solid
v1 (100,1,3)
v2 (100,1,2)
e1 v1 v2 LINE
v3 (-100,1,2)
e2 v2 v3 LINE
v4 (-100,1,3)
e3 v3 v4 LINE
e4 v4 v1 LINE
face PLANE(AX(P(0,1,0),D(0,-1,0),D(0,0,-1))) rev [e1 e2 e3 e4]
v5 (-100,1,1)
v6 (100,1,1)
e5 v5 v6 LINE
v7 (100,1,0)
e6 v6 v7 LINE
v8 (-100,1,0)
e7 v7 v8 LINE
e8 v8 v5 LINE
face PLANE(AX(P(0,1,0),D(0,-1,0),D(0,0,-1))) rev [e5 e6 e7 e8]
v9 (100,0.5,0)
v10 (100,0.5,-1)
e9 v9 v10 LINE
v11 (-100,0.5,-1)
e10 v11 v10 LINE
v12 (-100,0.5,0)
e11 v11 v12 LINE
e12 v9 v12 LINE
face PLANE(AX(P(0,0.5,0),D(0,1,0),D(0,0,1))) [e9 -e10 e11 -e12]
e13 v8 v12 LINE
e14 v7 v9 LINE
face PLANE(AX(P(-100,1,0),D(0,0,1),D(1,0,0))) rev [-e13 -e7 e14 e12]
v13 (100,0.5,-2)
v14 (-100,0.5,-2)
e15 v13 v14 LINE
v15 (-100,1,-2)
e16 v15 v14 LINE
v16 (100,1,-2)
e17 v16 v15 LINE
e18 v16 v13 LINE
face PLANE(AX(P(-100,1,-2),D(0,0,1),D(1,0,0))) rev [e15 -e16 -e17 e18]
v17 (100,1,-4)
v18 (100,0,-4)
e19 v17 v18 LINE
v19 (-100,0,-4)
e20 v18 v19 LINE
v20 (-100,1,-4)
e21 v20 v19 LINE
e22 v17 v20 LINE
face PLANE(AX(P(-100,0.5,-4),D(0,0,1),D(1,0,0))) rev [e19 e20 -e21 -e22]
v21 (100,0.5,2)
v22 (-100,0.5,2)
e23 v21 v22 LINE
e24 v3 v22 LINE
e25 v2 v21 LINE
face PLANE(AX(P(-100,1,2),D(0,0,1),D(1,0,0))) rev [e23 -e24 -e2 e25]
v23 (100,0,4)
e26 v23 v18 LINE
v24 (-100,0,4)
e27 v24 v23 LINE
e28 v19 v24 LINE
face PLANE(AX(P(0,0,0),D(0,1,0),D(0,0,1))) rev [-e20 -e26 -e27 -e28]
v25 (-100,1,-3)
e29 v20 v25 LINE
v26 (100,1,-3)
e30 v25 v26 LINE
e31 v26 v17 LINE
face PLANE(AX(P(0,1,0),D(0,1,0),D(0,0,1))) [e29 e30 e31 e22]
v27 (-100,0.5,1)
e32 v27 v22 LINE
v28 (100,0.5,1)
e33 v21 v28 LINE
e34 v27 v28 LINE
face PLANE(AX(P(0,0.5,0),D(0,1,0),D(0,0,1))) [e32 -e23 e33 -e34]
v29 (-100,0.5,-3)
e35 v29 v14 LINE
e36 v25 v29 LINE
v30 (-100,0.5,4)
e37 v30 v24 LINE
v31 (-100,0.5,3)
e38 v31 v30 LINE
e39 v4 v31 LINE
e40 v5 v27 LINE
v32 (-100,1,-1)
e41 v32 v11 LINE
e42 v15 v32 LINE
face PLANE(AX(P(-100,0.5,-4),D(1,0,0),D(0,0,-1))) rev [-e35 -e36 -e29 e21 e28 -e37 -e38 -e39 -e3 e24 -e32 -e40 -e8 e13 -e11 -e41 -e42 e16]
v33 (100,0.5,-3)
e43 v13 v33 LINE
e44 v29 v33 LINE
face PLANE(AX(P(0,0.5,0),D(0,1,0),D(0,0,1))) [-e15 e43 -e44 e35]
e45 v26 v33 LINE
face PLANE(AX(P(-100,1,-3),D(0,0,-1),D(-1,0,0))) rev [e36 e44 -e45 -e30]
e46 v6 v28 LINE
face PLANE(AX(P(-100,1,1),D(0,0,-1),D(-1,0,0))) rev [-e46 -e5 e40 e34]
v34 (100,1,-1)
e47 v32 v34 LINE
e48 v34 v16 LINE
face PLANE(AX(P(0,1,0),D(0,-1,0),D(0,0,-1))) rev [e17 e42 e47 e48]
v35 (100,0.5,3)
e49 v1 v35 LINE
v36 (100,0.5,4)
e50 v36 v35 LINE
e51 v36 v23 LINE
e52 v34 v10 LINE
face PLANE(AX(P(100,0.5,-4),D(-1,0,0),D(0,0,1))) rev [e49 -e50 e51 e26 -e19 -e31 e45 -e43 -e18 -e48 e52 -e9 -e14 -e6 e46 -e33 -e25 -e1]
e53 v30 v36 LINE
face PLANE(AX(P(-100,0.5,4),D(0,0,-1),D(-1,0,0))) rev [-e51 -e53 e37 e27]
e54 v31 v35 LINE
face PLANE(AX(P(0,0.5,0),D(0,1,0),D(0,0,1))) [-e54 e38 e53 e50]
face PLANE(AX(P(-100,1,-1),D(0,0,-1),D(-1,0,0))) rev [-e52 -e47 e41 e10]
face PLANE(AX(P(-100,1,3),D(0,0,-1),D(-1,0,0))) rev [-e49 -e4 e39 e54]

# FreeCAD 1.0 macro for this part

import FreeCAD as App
import Part
import Sketcher
Q = App.Units.Quantity

doc = App.newDocument("Part")
body = doc.addObject("PartDesign::Body", "Body")

sketch1 = body.newObject("Sketcher::SketchObject", "Sketch")
sketch1.AttachmentSupport = (doc.getObject("XZ_Plane"), [""])
sketch1.MapMode = "FlatFace"
sketch1.addGeometry(Part.LineSegment(App.Vector(-100, -4, 0), App.Vector(-100, 4, 0)), False)
sketch1.addGeometry(Part.LineSegment(App.Vector(-100, 4, 0), App.Vector(100, 4, 0)), False)
sketch1.addGeometry(Part.LineSegment(App.Vector(100, 4, 0), App.Vector(100, -4, 0)), False)
sketch1.addGeometry(Part.LineSegment(App.Vector(100, -4, 0), App.Vector(-100, -4, 0)), False)
sketch1.addConstraint(Sketcher.Constraint("Coincident", 0, 2, 1, 1))
sketch1.addConstraint(Sketcher.Constraint("Coincident", 1, 2, 2, 1))
sketch1.addConstraint(Sketcher.Constraint("Coincident", 2, 2, 3, 1))
sketch1.addConstraint(Sketcher.Constraint("Coincident", 3, 2, 0, 1))
sketch1.addConstraint(Sketcher.Constraint("Vertical", 0))
sketch1.addConstraint(Sketcher.Constraint("Horizontal", 1))
sketch1.addConstraint(Sketcher.Constraint("Vertical", 2))
sketch1.addConstraint(Sketcher.Constraint("Horizontal", 3))
sketch1.addConstraint(Sketcher.Constraint("Symmetric", 0, 2, 2, 2, -1, 1))
sketch1.addConstraint(Sketcher.Constraint("DistanceX", 1, 1, 1, 2, Q("200 mm")))
sketch1.addConstraint(Sketcher.Constraint("DistanceY", 0, 1, 0, 2, Q("8 mm")))
pad1 = body.newObject("PartDesign::Pad", "Pad")
pad1.Profile = sketch1
pad1.Length = 0.5
pad1.Reversed = True

sketch2 = body.newObject("Sketcher::SketchObject", "Sketch001")
sketch2.AttachmentSupport = (doc.getObject("XZ_Plane"), [""])
sketch2.MapMode = "FlatFace"
sketch2.AttachmentOffset = App.Placement(App.Vector(0, 0, -0.5), App.Rotation())
sketch2.addGeometry(Part.LineSegment(App.Vector(-100, -4, 0), App.Vector(-100, -3, 0)), False)
sketch2.addGeometry(Part.LineSegment(App.Vector(-100, -3, 0), App.Vector(100, -3, 0)), False)
sketch2.addGeometry(Part.LineSegment(App.Vector(100, -3, 0), App.Vector(100, -4, 0)), False)
sketch2.addGeometry(Part.LineSegment(App.Vector(100, -4, 0), App.Vector(-100, -4, 0)), False)
sketch2.addGeometry(Part.LineSegment(App.Vector(-100, -2, 0), App.Vector(-100, -1, 0)), False)
sketch2.addGeometry(Part.LineSegment(App.Vector(-100, -1, 0), App.Vector(100, -1, 0)), False)
sketch2.addGeometry(Part.LineSegment(App.Vector(100, -1, 0), App.Vector(100, -2, 0)), False)
sketch2.addGeometry(Part.LineSegment(App.Vector(100, -2, 0), App.Vector(-100, -2, 0)), False)
sketch2.addGeometry(Part.LineSegment(App.Vector(-100, 0, 0), App.Vector(-100, 1, 0)), False)
sketch2.addGeometry(Part.LineSegment(App.Vector(-100, 1, 0), App.Vector(100, 1, 0)), False)
sketch2.addGeometry(Part.LineSegment(App.Vector(100, 1, 0), App.Vector(100, 0, 0)), False)
sketch2.addGeometry(Part.LineSegment(App.Vector(100, 0, 0), App.Vector(-100, 0, 0)), False)
sketch2.addGeometry(Part.LineSegment(App.Vector(-100, 2, 0), App.Vector(-100, 3, 0)), False)
sketch2.addGeometry(Part.LineSegment(App.Vector(-100, 3, 0), App.Vector(100, 3, 0)), False)
sketch2.addGeometry(Part.LineSegment(App.Vector(100, 3, 0), App.Vector(100, 2, 0)), False)
sketch2.addGeometry(Part.LineSegment(App.Vector(100, 2, 0), App.Vector(-100, 2, 0)), False)
sketch2.addConstraint(Sketcher.Constraint("Coincident", 0, 2, 1, 1))
sketch2.addConstraint(Sketcher.Constraint("Coincident", 1, 2, 2, 1))
sketch2.addConstraint(Sketcher.Constraint("Coincident", 2, 2, 3, 1))
sketch2.addConstraint(Sketcher.Constraint("Coincident", 3, 2, 0, 1))
sketch2.addConstraint(Sketcher.Constraint("Coincident", 4, 2, 5, 1))
sketch2.addConstraint(Sketcher.Constraint("Coincident", 5, 2, 6, 1))
sketch2.addConstraint(Sketcher.Constraint("Coincident", 6, 2, 7, 1))
sketch2.addConstraint(Sketcher.Constraint("Coincident", 7, 2, 4, 1))
sketch2.addConstraint(Sketcher.Constraint("Coincident", 8, 2, 9, 1))
sketch2.addConstraint(Sketcher.Constraint("Coincident", 9, 2, 10, 1))
sketch2.addConstraint(Sketcher.Constraint("Coincident", 10, 2, 11, 1))
sketch2.addConstraint(Sketcher.Constraint("Coincident", 11, 2, 8, 1))
sketch2.addConstraint(Sketcher.Constraint("Coincident", 12, 2, 13, 1))
sketch2.addConstraint(Sketcher.Constraint("Coincident", 13, 2, 14, 1))
sketch2.addConstraint(Sketcher.Constraint("Coincident", 14, 2, 15, 1))
sketch2.addConstraint(Sketcher.Constraint("Coincident", 15, 2, 12, 1))
sketch2.addConstraint(Sketcher.Constraint("Vertical", 0))
sketch2.addConstraint(Sketcher.Constraint("Horizontal", 1))
sketch2.addConstraint(Sketcher.Constraint("Vertical", 2))
sketch2.addConstraint(Sketcher.Constraint("Horizontal", 3))
sketch2.addConstraint(Sketcher.Constraint("Vertical", 4))
sketch2.addConstraint(Sketcher.Constraint("Horizontal", 5))
sketch2.addConstraint(Sketcher.Constraint("Vertical", 6))
sketch2.addConstraint(Sketcher.Constraint("Horizontal", 7))
sketch2.addConstraint(Sketcher.Constraint("Vertical", 8))
sketch2.addConstraint(Sketcher.Constraint("Horizontal", 9))
sketch2.addConstraint(Sketcher.Constraint("Vertical", 10))
sketch2.addConstraint(Sketcher.Constraint("Horizontal", 11))
sketch2.addConstraint(Sketcher.Constraint("Vertical", 12))
sketch2.addConstraint(Sketcher.Constraint("Horizontal", 13))
sketch2.addConstraint(Sketcher.Constraint("Vertical", 14))
sketch2.addConstraint(Sketcher.Constraint("Horizontal", 15))
sketch2.addConstraint(Sketcher.Constraint("Symmetric", 5, 2, 8, 2, -1, 1))
sketch2.addConstraint(Sketcher.Constraint("Symmetric", 10, 2, 11, 2, -1, 1))
sketch2.addConstraint(Sketcher.Constraint("Symmetric", 1, 2, 12, 2, -1, 1))
sketch2.addConstraint(Sketcher.Constraint("Symmetric", 7, 2, 14, 2, -1, 1))
sketch2.addConstraint(Sketcher.Constraint("Vertical", 3, 2, 4, 2))
sketch2.addConstraint(Sketcher.Constraint("Vertical", 2, 2, 5, 2))
sketch2.addConstraint(Sketcher.Constraint("Vertical", 7, 2, 8, 2))
sketch2.addConstraint(Sketcher.Constraint("Equal", 2, 4))
sketch2.addConstraint(Sketcher.Constraint("Equal", 6, 8))
sketch2.addConstraint(Sketcher.Constraint("Equal", 10, 12))
sketch2.addConstraint(Sketcher.Constraint("DistanceX", 1, 1, 1, 2, Q("200 mm")))
sketch2.addConstraint(Sketcher.Constraint("DistanceY", 0, 1, 0, 2, Q("1 mm")))
pad2 = body.newObject("PartDesign::Pad", "Pad001")
pad2.Profile = sketch2
pad2.Length = 0.5
pad2.Reversed = True

doc.recompute()
